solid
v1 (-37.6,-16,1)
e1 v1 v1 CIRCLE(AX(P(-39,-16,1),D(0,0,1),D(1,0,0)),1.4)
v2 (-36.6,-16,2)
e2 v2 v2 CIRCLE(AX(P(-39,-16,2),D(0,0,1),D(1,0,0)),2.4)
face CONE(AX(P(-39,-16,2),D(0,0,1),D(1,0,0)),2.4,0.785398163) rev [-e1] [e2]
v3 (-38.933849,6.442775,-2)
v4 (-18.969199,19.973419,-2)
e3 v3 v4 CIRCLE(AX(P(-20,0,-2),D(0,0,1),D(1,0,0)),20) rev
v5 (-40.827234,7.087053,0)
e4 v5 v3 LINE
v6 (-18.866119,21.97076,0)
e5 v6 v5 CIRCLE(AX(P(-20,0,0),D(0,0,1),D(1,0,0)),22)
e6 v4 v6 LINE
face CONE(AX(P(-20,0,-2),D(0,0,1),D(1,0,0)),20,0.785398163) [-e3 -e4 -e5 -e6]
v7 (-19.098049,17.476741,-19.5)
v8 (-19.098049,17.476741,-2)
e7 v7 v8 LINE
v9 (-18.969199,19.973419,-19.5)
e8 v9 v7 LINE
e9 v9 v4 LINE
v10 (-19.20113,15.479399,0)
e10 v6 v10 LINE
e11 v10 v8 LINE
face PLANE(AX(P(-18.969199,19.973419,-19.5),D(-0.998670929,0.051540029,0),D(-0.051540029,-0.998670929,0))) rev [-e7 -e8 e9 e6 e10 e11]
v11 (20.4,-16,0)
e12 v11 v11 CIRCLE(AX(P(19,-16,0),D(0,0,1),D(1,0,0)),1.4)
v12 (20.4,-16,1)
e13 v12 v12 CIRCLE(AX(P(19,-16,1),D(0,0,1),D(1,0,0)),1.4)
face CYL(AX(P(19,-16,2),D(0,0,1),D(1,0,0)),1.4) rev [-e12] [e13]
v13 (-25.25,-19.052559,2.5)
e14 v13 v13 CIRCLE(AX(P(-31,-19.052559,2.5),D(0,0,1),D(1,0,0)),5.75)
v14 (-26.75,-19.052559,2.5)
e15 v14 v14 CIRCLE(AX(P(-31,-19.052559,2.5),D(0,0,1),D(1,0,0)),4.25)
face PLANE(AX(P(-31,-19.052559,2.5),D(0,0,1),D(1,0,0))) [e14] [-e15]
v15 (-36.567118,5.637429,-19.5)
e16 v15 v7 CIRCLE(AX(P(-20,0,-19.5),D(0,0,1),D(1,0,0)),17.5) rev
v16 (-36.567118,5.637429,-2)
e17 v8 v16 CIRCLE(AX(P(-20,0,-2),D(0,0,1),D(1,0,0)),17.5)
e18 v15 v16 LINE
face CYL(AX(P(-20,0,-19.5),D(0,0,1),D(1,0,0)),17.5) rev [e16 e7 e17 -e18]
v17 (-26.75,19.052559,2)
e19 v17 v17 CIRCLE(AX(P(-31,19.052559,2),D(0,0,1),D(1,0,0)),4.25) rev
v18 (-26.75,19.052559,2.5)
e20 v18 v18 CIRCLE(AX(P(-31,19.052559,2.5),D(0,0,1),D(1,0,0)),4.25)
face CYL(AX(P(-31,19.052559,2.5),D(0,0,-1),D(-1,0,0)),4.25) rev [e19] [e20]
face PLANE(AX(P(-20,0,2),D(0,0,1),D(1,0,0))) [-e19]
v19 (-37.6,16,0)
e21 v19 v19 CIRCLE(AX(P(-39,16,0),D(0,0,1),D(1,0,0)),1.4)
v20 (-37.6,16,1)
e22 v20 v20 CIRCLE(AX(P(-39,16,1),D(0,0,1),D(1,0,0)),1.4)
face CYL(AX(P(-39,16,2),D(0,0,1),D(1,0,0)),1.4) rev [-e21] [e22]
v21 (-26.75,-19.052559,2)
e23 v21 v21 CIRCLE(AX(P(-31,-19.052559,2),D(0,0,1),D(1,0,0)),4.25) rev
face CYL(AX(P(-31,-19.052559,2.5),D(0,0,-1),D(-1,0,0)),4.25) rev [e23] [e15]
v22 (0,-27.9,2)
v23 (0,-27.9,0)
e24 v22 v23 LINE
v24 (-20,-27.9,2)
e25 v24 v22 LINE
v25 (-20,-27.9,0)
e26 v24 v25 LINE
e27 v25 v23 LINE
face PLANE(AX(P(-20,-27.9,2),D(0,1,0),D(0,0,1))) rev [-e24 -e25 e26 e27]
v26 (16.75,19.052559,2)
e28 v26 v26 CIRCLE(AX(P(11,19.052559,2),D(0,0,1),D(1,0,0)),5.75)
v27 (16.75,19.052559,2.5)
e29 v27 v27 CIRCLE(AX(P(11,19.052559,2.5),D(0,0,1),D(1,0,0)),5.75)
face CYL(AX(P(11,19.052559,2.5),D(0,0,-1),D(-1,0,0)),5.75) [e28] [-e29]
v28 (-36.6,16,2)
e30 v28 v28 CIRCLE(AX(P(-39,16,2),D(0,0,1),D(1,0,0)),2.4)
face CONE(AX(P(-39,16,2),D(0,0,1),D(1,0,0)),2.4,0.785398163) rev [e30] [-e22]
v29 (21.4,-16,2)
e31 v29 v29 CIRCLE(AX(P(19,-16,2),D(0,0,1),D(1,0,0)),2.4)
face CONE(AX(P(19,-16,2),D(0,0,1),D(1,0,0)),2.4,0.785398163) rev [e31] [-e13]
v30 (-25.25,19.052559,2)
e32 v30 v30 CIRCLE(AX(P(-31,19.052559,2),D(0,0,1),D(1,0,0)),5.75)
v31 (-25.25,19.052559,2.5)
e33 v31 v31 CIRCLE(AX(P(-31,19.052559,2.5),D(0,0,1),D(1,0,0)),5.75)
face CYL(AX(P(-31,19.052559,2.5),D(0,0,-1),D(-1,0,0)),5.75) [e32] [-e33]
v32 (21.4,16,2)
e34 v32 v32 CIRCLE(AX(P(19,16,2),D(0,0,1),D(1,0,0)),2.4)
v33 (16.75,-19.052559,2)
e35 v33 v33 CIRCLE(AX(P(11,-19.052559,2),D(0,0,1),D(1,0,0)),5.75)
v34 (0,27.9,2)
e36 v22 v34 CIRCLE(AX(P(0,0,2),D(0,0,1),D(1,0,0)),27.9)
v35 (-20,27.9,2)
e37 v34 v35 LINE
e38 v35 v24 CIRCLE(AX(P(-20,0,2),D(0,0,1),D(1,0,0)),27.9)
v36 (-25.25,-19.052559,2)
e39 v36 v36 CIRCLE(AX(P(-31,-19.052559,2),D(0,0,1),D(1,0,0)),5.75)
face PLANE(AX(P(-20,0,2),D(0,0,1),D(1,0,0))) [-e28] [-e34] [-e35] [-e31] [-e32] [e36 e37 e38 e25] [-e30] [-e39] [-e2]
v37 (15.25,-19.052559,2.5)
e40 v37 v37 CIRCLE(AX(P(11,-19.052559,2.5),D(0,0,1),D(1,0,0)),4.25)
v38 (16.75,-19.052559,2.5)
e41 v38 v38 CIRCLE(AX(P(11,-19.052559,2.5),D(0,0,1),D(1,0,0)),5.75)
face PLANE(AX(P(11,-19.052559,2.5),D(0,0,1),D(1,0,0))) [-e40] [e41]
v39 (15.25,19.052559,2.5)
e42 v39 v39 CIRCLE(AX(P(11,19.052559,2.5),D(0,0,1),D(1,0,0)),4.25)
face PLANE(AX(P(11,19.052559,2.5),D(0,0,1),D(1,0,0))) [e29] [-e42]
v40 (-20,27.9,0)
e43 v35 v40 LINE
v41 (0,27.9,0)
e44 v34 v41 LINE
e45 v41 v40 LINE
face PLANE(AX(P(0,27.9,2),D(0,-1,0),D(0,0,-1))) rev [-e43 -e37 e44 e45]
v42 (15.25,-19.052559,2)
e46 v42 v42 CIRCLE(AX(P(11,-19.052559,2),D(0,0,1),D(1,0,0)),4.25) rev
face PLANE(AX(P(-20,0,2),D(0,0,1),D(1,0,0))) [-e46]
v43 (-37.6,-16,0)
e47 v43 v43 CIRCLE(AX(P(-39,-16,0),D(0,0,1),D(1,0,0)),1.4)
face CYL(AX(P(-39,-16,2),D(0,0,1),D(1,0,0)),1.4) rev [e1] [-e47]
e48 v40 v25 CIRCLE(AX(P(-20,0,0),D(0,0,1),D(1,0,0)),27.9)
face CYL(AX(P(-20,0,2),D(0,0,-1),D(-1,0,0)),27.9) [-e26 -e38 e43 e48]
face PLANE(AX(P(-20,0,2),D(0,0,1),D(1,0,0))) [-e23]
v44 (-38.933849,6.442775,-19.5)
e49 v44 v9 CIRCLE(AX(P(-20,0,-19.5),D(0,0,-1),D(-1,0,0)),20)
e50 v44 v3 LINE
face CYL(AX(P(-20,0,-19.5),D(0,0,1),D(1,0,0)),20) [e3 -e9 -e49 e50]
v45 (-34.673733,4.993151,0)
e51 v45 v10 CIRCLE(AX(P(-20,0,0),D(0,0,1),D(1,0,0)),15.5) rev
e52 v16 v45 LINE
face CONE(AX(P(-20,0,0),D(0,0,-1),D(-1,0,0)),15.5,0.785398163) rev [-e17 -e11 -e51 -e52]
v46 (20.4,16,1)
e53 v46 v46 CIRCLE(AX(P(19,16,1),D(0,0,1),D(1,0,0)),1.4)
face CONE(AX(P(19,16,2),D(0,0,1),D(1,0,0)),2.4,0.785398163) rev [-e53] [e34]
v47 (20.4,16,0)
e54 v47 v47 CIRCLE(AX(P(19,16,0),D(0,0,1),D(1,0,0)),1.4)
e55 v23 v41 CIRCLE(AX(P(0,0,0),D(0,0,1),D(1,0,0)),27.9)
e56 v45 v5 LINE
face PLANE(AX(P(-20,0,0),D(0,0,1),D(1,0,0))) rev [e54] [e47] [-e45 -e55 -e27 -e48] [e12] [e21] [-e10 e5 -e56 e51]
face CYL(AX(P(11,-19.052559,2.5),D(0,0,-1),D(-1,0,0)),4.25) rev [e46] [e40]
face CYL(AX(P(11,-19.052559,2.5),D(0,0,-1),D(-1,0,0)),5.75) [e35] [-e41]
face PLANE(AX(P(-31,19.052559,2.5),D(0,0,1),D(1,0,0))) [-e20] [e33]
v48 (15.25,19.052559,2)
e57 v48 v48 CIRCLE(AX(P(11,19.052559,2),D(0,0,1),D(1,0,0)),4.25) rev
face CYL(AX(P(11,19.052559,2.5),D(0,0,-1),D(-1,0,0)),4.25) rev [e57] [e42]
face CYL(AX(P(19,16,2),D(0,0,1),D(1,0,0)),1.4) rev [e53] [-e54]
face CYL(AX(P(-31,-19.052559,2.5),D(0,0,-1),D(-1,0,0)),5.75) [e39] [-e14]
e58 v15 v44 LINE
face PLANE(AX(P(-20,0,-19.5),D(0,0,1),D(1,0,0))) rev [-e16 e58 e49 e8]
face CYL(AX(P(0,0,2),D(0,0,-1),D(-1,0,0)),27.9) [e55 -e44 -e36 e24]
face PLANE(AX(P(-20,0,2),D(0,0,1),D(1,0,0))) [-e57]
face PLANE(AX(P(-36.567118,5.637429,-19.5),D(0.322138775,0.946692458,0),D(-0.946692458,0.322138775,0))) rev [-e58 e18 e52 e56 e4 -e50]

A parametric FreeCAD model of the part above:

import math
import FreeCAD as App
import Part
import Sketcher

V = App.Vector
Q = App.Units.Quantity


def edges_at(feature, points):
    """Names of the edges that pass closest to the given points."""
    edges = feature.Shape.Edges
    near = lambda p: min(range(len(edges)), key=lambda i: edges[i].distToShape(Part.Vertex(*p))[0])
    return sorted({f"Edge{near(p) + 1}" for p in points})

doc = App.newDocument("Part")
body = doc.addObject("PartDesign::Body", "Body")

# Sketch on XY plane
sketch1 = body.newObject("Sketcher::SketchObject", "Sketch")
sketch1.AttachmentSupport = (doc.getObject("XY_Plane"), [""])
sketch1.MapMode = "FlatFace"
sketch1.addGeometry([
    Part.LineSegment(V(-20, -28, 0), V(0, -28, 0)),
    Part.ArcOfCircle(Part.Circle(V(0, 0, 0), V(0, 0, 1), 28), math.radians(-90), math.radians(90)),
    Part.LineSegment(V(0, 28, 0), V(-20, 28, 0)),
    Part.ArcOfCircle(Part.Circle(V(-20, 0, 0), V(0, 0, 1), 28), math.radians(90), math.radians(270)),
], False)
sketch1.addConstraint([
    Sketcher.Constraint("Tangent", 0, 2, 1, 1),
    Sketcher.Constraint("Tangent", 1, 2, 2, 1),
    Sketcher.Constraint("Tangent", 2, 2, 3, 1),
    Sketcher.Constraint("Tangent", 3, 2, 0, 1),
    Sketcher.Constraint("Horizontal", 0),
    Sketcher.Constraint("Horizontal", 2),
    Sketcher.Constraint("Coincident", 1, 3, -1, 1),
    Sketcher.Constraint("Radius", 1, Q("27.9 mm")),
    Sketcher.Constraint("DistanceX", 0, 1, 0, 2, Q("20 mm")),
])
pad1 = body.newObject("PartDesign::Pad", "Pad")
pad1.Profile = sketch1
pad1.Length = 2

# Sketch on XY plane
sketch2 = body.newObject("Sketcher::SketchObject", "Sketch001")
sketch2.AttachmentSupport = (doc.getObject("XY_Plane"), [""])
sketch2.MapMode = "FlatFace"
sketch2.AttachmentOffset = App.Placement(V(0, 0, 2), App.Rotation())
sketch2.addGeometry([
    Part.Circle(V(-39, 16, 0), V(0, 0, 1), 1.4),  # 0
    Part.Circle(V(-39, -16, 0), V(0, 0, 1), 1.4),  # 1
    Part.Circle(V(19, 16, 0), V(0, 0, 1), 1.4),  # 2
    Part.Circle(V(19, -16, 0), V(0, 0, 1), 1.4),  # 3
    Part.Circle(V(-60.5, 2.7, 0), V(0, 0, 1), 1.4),  # 4
    Part.Circle(V(-55.7, 1.5, 0), V(0, 0, 1), 1.4),  # 5
], False)
sketch2.addConstraint([
    Sketcher.Constraint("Equal", 0, 1),
    Sketcher.Constraint("Equal", 1, 2),
    Sketcher.Constraint("Equal", 2, 3),
    Sketcher.Constraint("Equal", 3, 4),
    Sketcher.Constraint("Equal", 4, 5),
    Sketcher.Constraint("Symmetric", 0, 3, 1, 3, -1),
    Sketcher.Constraint("Symmetric", 2, 3, 3, 3, -1),
    Sketcher.Constraint("Horizontal", 0, 3, 2, 3),
    Sketcher.Constraint("Diameter", 0, Q("2.8 mm")),
    Sketcher.Constraint("DistanceX", 0, 3, -1, 1, Q("39 mm")),
    Sketcher.Constraint("DistanceY", -1, 1, 0, 3, Q("16 mm")),
    Sketcher.Constraint("DistanceX", -1, 1, 2, 3, Q("19 mm")),
    Sketcher.Constraint("DistanceX", 4, 3, -1, 1, Q("60.528139 mm")),
    Sketcher.Constraint("DistanceX", 5, 3, -1, 1, Q("55.747291 mm")),
    Sketcher.Constraint("DistanceY", 5, 3, 4, 3, Q("1.213051 mm")),
    Sketcher.Constraint("DistanceY", -1, 1, 4, 3, Q("2.675848 mm")),
])
doc.recompute()
hole = body.newObject("PartDesign::Hole", "Hole")
hole.Profile = sketch2
hole.ThreadType = "None"
hole.Diameter = 2.8
hole.DepthType = "Dimension"
hole.Depth = 7.5
hole.DrillPoint = "Angled"
hole.DrillPointAngle = 118
hole.HoleCutType = "Countersink"
hole.HoleCutDiameter = 4.8
hole.HoleCutCountersinkAngle = 90

# Sketch on XY plane
sketch3 = body.newObject("Sketcher::SketchObject", "Sketch002")
sketch3.AttachmentSupport = (doc.getObject("XY_Plane"), [""])
sketch3.MapMode = "FlatFace"
sketch3.AttachmentOffset = App.Placement(V(0, 0, 2), App.Rotation())
sketch3.addGeometry([
    Part.Circle(V(11, -19.1, 0), V(0, 0, 1), 5.8),  # 0
    Part.Circle(V(11, -19.1, 0), V(0, 0, 1), 4.2),  # 1
    Part.Circle(V(11, 19.1, 0), V(0, 0, 1), 5.8),  # 2
    Part.Circle(V(11, 19.1, 0), V(0, 0, 1), 4.2),  # 3
    Part.Circle(V(-31, 19.1, 0), V(0, 0, 1), 5.8),  # 4
    Part.Circle(V(-31, 19.1, 0), V(0, 0, 1), 4.2),  # 5
    Part.Circle(V(-31, -19.1, 0), V(0, 0, 1), 5.8),  # 6
    Part.Circle(V(-31, -19.1, 0), V(0, 0, 1), 4.2),  # 7
], False)
sketch3.addConstraint([
    Sketcher.Constraint("Coincident", 1, 3, 0, 3),
    Sketcher.Constraint("Coincident", 3, 3, 2, 3),
    Sketcher.Constraint("Coincident", 5, 3, 4, 3),
    Sketcher.Constraint("Coincident", 7, 3, 6, 3),
    Sketcher.Constraint("Equal", 0, 2),
    Sketcher.Constraint("Equal", 1, 3),
    Sketcher.Constraint("Equal", 2, 4),
    Sketcher.Constraint("Equal", 3, 5),
    Sketcher.Constraint("Equal", 4, 6),
    Sketcher.Constraint("Equal", 5, 7),
    Sketcher.Constraint("Symmetric", 0, 3, 2, 3, -1),
    Sketcher.Constraint("Symmetric", 4, 3, 6, 3, -1),
    Sketcher.Constraint("Horizontal", 3, 3, 4, 3),
    Sketcher.Constraint("Diameter", 0, Q("11.5 mm")),
    Sketcher.Constraint("Diameter", 1, Q("8.5 mm")),
    Sketcher.Constraint("DistanceX", -1, 1, 0, 3, Q("11 mm")),
    Sketcher.Constraint("DistanceX", 4, 3, -1, 1, Q("31 mm")),
    Sketcher.Constraint("DistanceY", 0, 3, -1, 1, Q("19.052559 mm")),
])
pad2 = body.newObject("PartDesign::Pad", "Pad001")
pad2.Profile = sketch3
pad2.Length = 0.5

# Sketch on XY plane
sketch4 = body.newObject("Sketcher::SketchObject", "Sketch003")
sketch4.AttachmentSupport = (doc.getObject("XY_Plane"), [""])
sketch4.MapMode = "FlatFace"
sketch4.AttachmentOffset = App.Placement(V(0, 0, 2), App.Rotation())
sketch4.addGeometry([
    Part.ArcOfCircle(Part.Circle(V(-20, 0, 0), V(0, 0, 1), 20), math.radians(87), math.radians(161)),
    Part.LineSegment(V(-38.9, 6.4, 0), V(-36.6, 5.6, 0)),
    Part.ArcOfCircle(Part.Circle(V(-20, 0, 0), V(0, 0, 1), 17.5), math.radians(87), math.radians(161)),
    Part.LineSegment(V(-19.1, 17.5, 0), V(-19, 20, 0)),
], False)
sketch4.addConstraint([
    Sketcher.Constraint("Coincident", 0, 2, 1, 1),
    Sketcher.Constraint("Coincident", 1, 2, 2, 2),
    Sketcher.Constraint("Coincident", 2, 1, 3, 1),
    Sketcher.Constraint("Coincident", 3, 2, 0, 1),
    Sketcher.Constraint("Coincident", 2, 3, 0, 3),
    Sketcher.Constraint("PointOnObject", 0, 3, -1),
    Sketcher.Constraint("Radius", 0, Q("20 mm")),
    Sketcher.Constraint("Radius", 2, Q("17.5 mm")),
    Sketcher.Constraint("DistanceX", 0, 3, -1, 1, Q("20 mm")),
    Sketcher.Constraint("DistanceX", 3, 2, -1, 1, Q("18.969199 mm")),
    Sketcher.Constraint("DistanceX", 0, 2, 2, 1, Q("19.8358 mm")),
    Sketcher.Constraint("DistanceX", 0, 2, -1, 1, Q("38.933849 mm")),
    Sketcher.Constraint("DistanceX", 1, 2, -1, 1, Q("36.567118 mm")),
])
pad3 = body.newObject("PartDesign::Pad", "Pad002")
pad3.Profile = sketch4
pad3.Length = 21.5
pad3.Reversed = True
doc.recompute()

chamfer = body.newObject("PartDesign::Chamfer", "Chamfer")
chamfer.Base = (pad3, edges_at(pad3, [(-31.22, 16.556, 0), (-29.818, 14.486, 0)]))
chamfer.Size = 2

doc.recompute()
